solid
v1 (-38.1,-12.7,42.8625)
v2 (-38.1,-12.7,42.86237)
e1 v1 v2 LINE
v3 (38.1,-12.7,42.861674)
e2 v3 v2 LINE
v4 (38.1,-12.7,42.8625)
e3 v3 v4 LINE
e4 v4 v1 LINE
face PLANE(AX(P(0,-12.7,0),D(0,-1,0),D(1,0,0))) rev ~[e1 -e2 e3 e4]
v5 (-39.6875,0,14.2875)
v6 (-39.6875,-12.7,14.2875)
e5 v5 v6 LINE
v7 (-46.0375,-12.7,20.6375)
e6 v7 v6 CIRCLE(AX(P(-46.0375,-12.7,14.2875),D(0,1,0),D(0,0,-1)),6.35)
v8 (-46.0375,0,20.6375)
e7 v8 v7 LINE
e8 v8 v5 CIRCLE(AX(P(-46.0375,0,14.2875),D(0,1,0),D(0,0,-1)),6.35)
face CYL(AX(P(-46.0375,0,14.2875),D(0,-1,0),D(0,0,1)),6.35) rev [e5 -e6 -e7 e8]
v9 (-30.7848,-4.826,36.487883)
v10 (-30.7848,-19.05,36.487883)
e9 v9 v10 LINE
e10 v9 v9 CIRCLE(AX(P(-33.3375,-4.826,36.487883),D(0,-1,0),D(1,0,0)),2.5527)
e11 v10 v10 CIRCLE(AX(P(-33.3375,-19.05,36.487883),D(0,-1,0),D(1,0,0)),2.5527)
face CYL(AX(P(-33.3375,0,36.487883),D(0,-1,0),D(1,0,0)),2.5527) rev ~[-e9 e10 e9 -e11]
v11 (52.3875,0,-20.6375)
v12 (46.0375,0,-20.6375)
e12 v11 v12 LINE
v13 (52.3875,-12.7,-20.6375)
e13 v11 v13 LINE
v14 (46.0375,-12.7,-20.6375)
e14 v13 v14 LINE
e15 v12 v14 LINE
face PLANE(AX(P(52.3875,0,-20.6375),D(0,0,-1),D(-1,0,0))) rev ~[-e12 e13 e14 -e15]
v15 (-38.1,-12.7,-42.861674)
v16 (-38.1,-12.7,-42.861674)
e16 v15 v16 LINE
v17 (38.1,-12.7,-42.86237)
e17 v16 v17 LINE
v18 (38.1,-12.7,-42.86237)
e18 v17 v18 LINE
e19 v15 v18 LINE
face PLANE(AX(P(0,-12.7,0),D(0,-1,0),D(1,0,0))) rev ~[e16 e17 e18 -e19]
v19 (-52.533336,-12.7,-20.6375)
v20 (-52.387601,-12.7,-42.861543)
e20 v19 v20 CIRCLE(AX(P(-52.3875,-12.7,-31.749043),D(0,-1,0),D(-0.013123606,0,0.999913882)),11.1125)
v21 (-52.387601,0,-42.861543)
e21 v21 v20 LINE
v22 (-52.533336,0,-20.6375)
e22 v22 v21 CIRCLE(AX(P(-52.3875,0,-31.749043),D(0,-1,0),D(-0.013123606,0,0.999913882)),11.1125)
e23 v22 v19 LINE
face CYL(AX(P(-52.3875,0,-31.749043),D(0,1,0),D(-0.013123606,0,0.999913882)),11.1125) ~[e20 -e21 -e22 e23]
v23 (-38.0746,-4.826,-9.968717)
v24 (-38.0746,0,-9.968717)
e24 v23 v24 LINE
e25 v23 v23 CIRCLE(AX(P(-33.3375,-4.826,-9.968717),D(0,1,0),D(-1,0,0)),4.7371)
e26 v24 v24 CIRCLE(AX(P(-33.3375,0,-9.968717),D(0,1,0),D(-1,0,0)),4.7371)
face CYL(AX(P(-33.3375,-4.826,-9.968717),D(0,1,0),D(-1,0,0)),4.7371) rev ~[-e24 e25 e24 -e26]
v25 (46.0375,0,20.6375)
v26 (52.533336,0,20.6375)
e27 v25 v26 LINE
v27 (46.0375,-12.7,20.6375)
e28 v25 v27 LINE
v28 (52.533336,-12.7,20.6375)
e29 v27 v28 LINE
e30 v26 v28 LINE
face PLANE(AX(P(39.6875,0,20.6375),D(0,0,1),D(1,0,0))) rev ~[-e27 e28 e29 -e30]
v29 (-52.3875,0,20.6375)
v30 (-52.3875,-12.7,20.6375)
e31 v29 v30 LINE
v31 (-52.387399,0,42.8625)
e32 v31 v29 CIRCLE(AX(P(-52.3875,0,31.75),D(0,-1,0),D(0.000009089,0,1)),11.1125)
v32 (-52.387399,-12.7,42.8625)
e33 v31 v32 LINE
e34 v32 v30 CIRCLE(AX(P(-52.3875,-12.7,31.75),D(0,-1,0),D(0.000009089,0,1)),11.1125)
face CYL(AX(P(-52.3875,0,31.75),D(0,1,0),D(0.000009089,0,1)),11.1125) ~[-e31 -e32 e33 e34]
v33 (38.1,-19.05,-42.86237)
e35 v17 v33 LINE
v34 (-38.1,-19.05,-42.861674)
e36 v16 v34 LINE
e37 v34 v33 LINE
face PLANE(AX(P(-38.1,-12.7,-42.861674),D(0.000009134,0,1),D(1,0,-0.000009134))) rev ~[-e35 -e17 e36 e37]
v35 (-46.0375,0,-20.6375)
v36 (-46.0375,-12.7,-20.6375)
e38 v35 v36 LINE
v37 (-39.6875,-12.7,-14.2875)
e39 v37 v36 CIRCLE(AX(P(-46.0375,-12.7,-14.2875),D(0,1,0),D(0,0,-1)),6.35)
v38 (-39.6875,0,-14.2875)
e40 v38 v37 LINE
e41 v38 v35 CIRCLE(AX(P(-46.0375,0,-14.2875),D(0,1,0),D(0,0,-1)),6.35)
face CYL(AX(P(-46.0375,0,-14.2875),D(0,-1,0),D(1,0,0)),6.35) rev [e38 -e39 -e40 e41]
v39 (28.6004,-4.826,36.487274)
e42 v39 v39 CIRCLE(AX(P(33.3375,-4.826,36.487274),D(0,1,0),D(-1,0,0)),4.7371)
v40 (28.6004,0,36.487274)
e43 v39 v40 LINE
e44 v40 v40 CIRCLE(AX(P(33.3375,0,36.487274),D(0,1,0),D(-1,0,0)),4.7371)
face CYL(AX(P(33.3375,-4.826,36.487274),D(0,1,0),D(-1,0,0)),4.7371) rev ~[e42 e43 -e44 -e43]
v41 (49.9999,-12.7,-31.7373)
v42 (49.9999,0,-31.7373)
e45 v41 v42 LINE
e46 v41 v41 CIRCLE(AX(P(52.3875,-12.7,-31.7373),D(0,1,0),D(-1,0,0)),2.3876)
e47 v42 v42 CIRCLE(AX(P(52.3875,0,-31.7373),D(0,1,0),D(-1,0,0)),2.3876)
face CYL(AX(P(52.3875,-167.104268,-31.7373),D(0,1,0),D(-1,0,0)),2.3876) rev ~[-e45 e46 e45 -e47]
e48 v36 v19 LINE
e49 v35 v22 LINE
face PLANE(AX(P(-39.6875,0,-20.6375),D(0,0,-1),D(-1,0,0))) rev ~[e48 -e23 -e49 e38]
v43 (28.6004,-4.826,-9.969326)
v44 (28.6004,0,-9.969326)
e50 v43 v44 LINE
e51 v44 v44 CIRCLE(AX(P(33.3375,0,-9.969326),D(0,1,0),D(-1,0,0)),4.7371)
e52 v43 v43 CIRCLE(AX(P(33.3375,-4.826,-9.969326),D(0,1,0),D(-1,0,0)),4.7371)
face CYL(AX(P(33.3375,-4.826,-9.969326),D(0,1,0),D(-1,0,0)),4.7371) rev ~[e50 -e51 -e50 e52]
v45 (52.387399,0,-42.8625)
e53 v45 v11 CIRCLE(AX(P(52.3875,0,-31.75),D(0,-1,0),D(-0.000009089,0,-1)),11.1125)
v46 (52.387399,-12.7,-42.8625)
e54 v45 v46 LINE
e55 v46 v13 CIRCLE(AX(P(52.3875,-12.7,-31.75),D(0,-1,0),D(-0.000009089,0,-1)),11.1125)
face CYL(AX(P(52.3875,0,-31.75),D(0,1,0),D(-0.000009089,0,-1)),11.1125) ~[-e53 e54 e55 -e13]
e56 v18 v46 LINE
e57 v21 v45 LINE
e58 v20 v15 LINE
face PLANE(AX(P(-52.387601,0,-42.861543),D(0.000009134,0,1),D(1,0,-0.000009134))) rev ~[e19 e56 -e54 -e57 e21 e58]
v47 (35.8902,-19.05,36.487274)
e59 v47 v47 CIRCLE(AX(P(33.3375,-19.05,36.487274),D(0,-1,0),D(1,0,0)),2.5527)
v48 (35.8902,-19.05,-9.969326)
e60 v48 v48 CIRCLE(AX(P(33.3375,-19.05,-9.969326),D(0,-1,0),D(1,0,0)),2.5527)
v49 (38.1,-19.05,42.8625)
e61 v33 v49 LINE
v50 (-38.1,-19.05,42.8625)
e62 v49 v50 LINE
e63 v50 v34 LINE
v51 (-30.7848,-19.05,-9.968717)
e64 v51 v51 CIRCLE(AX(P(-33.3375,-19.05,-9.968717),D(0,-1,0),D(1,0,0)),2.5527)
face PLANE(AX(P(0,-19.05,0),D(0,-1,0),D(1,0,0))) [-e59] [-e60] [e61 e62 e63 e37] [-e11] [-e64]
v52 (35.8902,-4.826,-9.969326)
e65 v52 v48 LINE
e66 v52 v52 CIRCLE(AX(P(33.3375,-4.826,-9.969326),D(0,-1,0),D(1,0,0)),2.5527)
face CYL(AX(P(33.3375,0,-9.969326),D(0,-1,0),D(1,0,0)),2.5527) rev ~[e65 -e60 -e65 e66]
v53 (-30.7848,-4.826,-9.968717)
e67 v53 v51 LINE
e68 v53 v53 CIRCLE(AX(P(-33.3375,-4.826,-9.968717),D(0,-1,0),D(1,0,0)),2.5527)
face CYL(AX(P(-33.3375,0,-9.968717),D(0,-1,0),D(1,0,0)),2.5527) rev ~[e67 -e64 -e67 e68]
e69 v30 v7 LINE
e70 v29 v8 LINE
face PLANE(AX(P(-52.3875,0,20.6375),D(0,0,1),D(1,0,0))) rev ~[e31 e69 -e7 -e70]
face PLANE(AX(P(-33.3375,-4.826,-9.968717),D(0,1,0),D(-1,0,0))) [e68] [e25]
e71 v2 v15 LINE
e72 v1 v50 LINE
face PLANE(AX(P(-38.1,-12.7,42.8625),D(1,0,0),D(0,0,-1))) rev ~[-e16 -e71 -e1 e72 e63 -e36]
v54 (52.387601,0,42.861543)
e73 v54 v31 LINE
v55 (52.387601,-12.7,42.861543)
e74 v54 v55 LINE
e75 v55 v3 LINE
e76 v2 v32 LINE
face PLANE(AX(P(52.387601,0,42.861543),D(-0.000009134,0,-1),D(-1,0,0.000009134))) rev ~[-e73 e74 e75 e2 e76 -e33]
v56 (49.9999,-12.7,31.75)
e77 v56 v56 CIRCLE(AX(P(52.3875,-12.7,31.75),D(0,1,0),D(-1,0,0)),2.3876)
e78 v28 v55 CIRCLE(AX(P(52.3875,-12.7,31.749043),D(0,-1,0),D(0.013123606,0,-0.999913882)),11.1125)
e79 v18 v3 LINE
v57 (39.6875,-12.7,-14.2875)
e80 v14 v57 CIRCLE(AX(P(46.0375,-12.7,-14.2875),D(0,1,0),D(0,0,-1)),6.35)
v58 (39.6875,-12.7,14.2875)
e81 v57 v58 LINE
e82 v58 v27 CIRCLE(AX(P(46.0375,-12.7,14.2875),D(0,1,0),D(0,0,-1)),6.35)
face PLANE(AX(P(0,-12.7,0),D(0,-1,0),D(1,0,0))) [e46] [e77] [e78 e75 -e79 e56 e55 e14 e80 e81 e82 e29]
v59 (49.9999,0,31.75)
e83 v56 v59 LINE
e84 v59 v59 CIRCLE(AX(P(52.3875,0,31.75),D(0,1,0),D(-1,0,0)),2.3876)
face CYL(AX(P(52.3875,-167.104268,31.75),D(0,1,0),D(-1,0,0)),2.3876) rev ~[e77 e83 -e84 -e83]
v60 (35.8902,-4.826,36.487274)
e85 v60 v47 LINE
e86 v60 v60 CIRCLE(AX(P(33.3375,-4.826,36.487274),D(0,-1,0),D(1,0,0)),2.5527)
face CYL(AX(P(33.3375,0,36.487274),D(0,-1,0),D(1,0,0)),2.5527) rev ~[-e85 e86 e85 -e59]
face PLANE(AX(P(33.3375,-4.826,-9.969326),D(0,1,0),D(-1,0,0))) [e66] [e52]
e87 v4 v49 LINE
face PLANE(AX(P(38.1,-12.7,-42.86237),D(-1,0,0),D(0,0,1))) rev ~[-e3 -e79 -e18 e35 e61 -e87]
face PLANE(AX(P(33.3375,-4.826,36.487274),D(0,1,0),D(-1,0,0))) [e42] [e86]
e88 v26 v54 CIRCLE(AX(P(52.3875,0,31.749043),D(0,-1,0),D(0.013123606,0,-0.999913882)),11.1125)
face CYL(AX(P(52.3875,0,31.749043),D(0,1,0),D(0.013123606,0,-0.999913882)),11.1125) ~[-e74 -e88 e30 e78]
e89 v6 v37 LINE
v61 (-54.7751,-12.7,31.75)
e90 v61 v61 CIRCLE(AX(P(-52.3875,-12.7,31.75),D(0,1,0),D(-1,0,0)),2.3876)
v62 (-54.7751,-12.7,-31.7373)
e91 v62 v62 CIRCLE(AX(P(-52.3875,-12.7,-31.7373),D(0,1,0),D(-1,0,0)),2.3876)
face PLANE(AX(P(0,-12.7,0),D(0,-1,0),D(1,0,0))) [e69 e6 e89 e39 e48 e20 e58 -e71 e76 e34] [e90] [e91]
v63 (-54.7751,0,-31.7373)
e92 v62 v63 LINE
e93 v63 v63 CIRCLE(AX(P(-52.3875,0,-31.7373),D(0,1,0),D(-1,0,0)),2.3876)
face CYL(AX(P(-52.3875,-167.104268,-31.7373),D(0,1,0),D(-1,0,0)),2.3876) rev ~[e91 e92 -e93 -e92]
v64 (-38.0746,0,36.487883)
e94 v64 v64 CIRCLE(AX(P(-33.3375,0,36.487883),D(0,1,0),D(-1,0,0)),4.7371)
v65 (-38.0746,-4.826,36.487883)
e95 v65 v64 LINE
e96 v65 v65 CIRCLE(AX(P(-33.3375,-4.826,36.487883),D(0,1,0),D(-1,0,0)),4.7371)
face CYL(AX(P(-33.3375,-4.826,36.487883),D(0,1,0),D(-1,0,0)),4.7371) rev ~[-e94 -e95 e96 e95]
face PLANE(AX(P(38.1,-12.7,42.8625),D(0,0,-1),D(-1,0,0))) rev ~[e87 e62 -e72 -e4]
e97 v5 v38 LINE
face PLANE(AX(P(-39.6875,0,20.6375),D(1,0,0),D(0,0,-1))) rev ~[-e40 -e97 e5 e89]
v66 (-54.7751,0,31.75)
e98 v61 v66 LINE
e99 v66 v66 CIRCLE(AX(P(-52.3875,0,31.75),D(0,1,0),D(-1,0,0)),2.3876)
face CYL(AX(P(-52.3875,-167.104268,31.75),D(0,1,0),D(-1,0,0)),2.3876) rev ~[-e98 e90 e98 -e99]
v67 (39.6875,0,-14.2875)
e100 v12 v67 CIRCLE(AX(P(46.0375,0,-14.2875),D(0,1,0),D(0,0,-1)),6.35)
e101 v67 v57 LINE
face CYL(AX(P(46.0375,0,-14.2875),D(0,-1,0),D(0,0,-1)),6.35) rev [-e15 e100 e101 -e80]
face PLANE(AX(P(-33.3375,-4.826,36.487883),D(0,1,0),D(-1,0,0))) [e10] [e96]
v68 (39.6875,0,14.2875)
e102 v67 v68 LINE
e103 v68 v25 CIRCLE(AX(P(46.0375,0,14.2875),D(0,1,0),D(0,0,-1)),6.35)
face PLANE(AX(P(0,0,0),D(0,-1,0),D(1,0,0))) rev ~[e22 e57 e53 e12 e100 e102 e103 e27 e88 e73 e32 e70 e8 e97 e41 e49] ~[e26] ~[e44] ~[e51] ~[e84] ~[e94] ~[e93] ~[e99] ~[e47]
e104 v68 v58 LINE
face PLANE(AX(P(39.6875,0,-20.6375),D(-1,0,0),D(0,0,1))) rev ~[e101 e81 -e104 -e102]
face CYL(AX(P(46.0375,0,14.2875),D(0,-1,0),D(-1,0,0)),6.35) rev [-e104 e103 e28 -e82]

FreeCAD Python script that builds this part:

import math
import FreeCAD as App
import Part
import Sketcher
Q = App.Units.Quantity


def edges_at(feature, points):
    """Names of the edges that pass closest to the given points."""
    edges = feature.Shape.Edges
    near = lambda p: min(range(len(edges)), key=lambda i: edges[i].distToShape(Part.Vertex(*p))[0])
    return sorted({f"Edge{near(p) + 1}" for p in points})


def add_polygon(sketch, points):
    """Adds a closed chain of lines whose ends are joined by coincident constraints."""
    first, n = sketch.GeometryCount, len(points)
    for a, b in zip(points, points[1:] + points[:1]):
        sketch.addGeometry(Part.LineSegment(App.Vector(*a, 0), App.Vector(*b, 0)), False)
    for i in range(n):
        sketch.addConstraint(Sketcher.Constraint("Coincident", first + i, 2, first + (i + 1) % n, 1))

doc = App.newDocument("Part")
body = doc.addObject("PartDesign::Body", "Body")

# Sketch on XZ plane
sketch1 = body.newObject("Sketcher::SketchObject", "Sketch")
sketch1.AttachmentSupport = (doc.getObject("XZ_Plane"), [""])
sketch1.MapMode = "FlatFace"
sketch1.addGeometry(Part.LineSegment(App.Vector(52.387601, 42.861543, 0), App.Vector(-52.387399, 42.8625, 0)), False)
sketch1.addGeometry(Part.ArcOfCircle(Part.Circle(App.Vector(-52.3875, 31.75, 0), App.Vector(0, 0, 1), 11.1125), math.radians(89.999479), math.radians(270)), False)
sketch1.addGeometry(Part.LineSegment(App.Vector(-52.3875, 20.6375, 0), App.Vector(-39.6875, 20.6375, 0)), False)
sketch1.addGeometry(Part.LineSegment(App.Vector(-39.6875, 20.6375, 0), App.Vector(-39.6875, -20.6375, 0)), False)
sketch1.addGeometry(Part.LineSegment(App.Vector(-39.6875, -20.6375, 0), App.Vector(-52.533336, -20.6375, 0)), False)
sketch1.addGeometry(Part.ArcOfCircle(Part.Circle(App.Vector(-52.3875, -31.749043, 0), App.Vector(0, 0, 1), 11.1125), math.radians(90.751949), math.radians(269.999479)), False)
sketch1.addGeometry(Part.LineSegment(App.Vector(-52.387601, -42.861543, 0), App.Vector(52.387399, -42.8625, 0)), False)
sketch1.addGeometry(Part.ArcOfCircle(Part.Circle(App.Vector(52.3875, -31.75, 0), App.Vector(0, 0, 1), 11.1125), math.radians(-90.000521), math.radians(90)), False)
sketch1.addGeometry(Part.LineSegment(App.Vector(52.3875, -20.6375, 0), App.Vector(39.6875, -20.6375, 0)), False)
sketch1.addGeometry(Part.LineSegment(App.Vector(39.6875, -20.6375, 0), App.Vector(39.6875, 20.6375, 0)), False)
sketch1.addGeometry(Part.LineSegment(App.Vector(39.6875, 20.6375, 0), App.Vector(52.533336, 20.6375, 0)), False)
sketch1.addGeometry(Part.ArcOfCircle(Part.Circle(App.Vector(52.3875, 31.749043, 0), App.Vector(0, 0, 1), 11.1125), math.radians(-89.248051), math.radians(89.999479)), False)
sketch1.addConstraint(Sketcher.Constraint("Tangent", 0, 2, 1, 1))
sketch1.addConstraint(Sketcher.Constraint("Tangent", 1, 2, 2, 1))
sketch1.addConstraint(Sketcher.Constraint("Coincident", 2, 2, 3, 1))
sketch1.addConstraint(Sketcher.Constraint("Coincident", 3, 2, 4, 1))
sketch1.addConstraint(Sketcher.Constraint("Coincident", 4, 2, 5, 1))
sketch1.addConstraint(Sketcher.Constraint("Tangent", 5, 2, 6, 1))
sketch1.addConstraint(Sketcher.Constraint("Tangent", 6, 2, 7, 1))
sketch1.addConstraint(Sketcher.Constraint("Tangent", 7, 2, 8, 1))
sketch1.addConstraint(Sketcher.Constraint("Coincident", 8, 2, 9, 1))
sketch1.addConstraint(Sketcher.Constraint("Coincident", 9, 2, 10, 1))
sketch1.addConstraint(Sketcher.Constraint("Coincident", 10, 2, 11, 1))
sketch1.addConstraint(Sketcher.Constraint("Tangent", 11, 2, 0, 1))
sketch1.addConstraint(Sketcher.Constraint("Horizontal", 2))
sketch1.addConstraint(Sketcher.Constraint("Vertical", 3))
sketch1.addConstraint(Sketcher.Constraint("Horizontal", 4))
sketch1.addConstraint(Sketcher.Constraint("Horizontal", 8))
sketch1.addConstraint(Sketcher.Constraint("Vertical", 9))
sketch1.addConstraint(Sketcher.Constraint("Horizontal", 10))
sketch1.addConstraint(Sketcher.Constraint("Equal", 1, 5))
sketch1.addConstraint(Sketcher.Constraint("Equal", 5, 7))
sketch1.addConstraint(Sketcher.Constraint("Equal", 7, 11))
sketch1.addConstraint(Sketcher.Constraint("Symmetric", 1, 3, 7, 3, -1, 1))
sketch1.addConstraint(Sketcher.Constraint("Symmetric", 5, 3, 11, 3, -1, 1))
sketch1.addConstraint(Sketcher.Constraint("Symmetric", 3, 2, 9, 2, -1, 1))
sketch1.addConstraint(Sketcher.Constraint("Horizontal", 4, 2, 7, 2))
sketch1.addConstraint(Sketcher.Constraint("Vertical", 1, 3, 5, 3))
sketch1.addConstraint(Sketcher.Constraint("DistanceX", 2, 1, 2, 2, Q("0.5 in")))
sketch1.addConstraint(Sketcher.Constraint("Radius", 1, Q("0.4375 in")))
sketch1.addConstraint(Sketcher.Constraint("DistanceY", 7, 3, 1, 3, Q("2.5 in")))
sketch1.addConstraint(Sketcher.Constraint("Distance", 0, Q("4.125 in")))
sketch1.addConstraint(Sketcher.Constraint("DistanceX", 4, 2, 4, 1, 12.845836))
pad1 = body.newObject("PartDesign::Pad", "Pad")
pad1.Profile = sketch1
pad1.Length = Q("0.5 in")
doc.recompute()

fillet = body.newObject("PartDesign::Fillet", "Fillet")
fillet.Base = (pad1, edges_at(pad1, [
    (-39.688, -6.35, 20.637),
    (-39.688, -6.35, -20.637),
    (39.688, -6.35, 20.637),
    (39.688, -6.35, -20.637),
]))
fillet.Radius = Q("0.25 in")

# Sketch on XZ plane
sketch2 = body.newObject("Sketcher::SketchObject", "Sketch001")
sketch2.AttachmentSupport = (doc.getObject("XZ_Plane"), [""])
sketch2.MapMode = "FlatFace"
sketch2.AttachmentOffset = App.Placement(App.Vector(0, 0, 0.5 * 25.4), App.Rotation())
add_polygon(sketch2, [(-38.1, -42.861674), (38.1, -42.86237), (38.1, 42.8625), (-38.1, 42.8625)])  # lines 0-3
sketch2.addConstraint(Sketcher.Constraint("Vertical", 1))
sketch2.addConstraint(Sketcher.Constraint("Horizontal", 2))
sketch2.addConstraint(Sketcher.Constraint("Vertical", 3))
sketch2.addConstraint(Sketcher.Constraint("DistanceX", 2, 2, 2, 1, Q("3 in")))
sketch2.addConstraint(Sketcher.Constraint("DistanceX", -1, 1, 0, 2, Q("1.5 in")))
sketch2.addConstraint(Sketcher.Constraint("DistanceY", -1, 1, 1, 2, Q("1.6875 in")))
sketch2.addConstraint(Sketcher.Constraint("DistanceY", 1, 1, 1, 2, 85.72487))
sketch2.addConstraint(Sketcher.Constraint("DistanceY", 3, 2, 3, 1, 85.724174))
pad2 = body.newObject("PartDesign::Pad", "Pad001")
pad2.Profile = sketch2
pad2.Length = Q("0.25 in")

# Sketch on XZ plane
sketch3 = body.newObject("Sketcher::SketchObject", "Sketch002")
sketch3.AttachmentSupport = (doc.getObject("XZ_Plane"), [""])
sketch3.MapMode = "FlatFace"
sketch3.AttachmentOffset = App.Placement(App.Vector(0, 0, 0.5 * 25.4), App.Rotation())
sketch3.addGeometry(Part.Circle(App.Vector(-52.3875, 31.75, 0), App.Vector(0, 0, 1), 2.3876), False)
sketch3.addGeometry(Part.Circle(App.Vector(52.3875, 31.75, 0), App.Vector(0, 0, 1), 2.3876), False)
sketch3.addGeometry(Part.Circle(App.Vector(52.3875, -31.7373, 0), App.Vector(0, 0, 1), 2.3876), False)
sketch3.addGeometry(Part.Circle(App.Vector(-52.3875, -31.7373, 0), App.Vector(0, 0, 1), 2.3876), False)
sketch3.addConstraint(Sketcher.Constraint("Equal", 0, 1))
sketch3.addConstraint(Sketcher.Constraint("Equal", 1, 2))
sketch3.addConstraint(Sketcher.Constraint("Equal", 2, 3))
sketch3.addConstraint(Sketcher.Constraint("Symmetric", 0, 3, 1, 3, -2))
sketch3.addConstraint(Sketcher.Constraint("Symmetric", 2, 3, 3, 3, -2))
sketch3.addConstraint(Sketcher.Constraint("Vertical", 1, 3, 2, 3))
sketch3.addConstraint(Sketcher.Constraint("Diameter", 0, Q("0.188 in")))
sketch3.addConstraint(Sketcher.Constraint("DistanceY", -1, 1, 0, 3, Q("1.25 in")))
sketch3.addConstraint(Sketcher.Constraint("DistanceX", 0, 3, -1, 1, Q("2.0625 in")))
sketch3.addConstraint(Sketcher.Constraint("DistanceY", 2, 3, -1, 1, Q("1.2495 in")))
doc.recompute()
hole = body.newObject("PartDesign::Hole", "Hole")
hole.Profile = sketch3
hole.ThreadType = "None"
hole.Diameter = Q("0.188 in")
hole.DepthType = "ThroughAll"

# Sketch on XZ plane
sketch4 = body.newObject("Sketcher::SketchObject", "Sketch003")
sketch4.AttachmentSupport = (doc.getObject("XZ_Plane"), [""])
sketch4.MapMode = "FlatFace"
sketch4.addGeometry(Part.Circle(App.Vector(33.3375, 36.487274, 0), App.Vector(0, 0, 1), 2.5527), False)
sketch4.addGeometry(Part.Circle(App.Vector(-33.3375, 36.487883, 0), App.Vector(0, 0, 1), 2.5527), False)
sketch4.addGeometry(Part.Circle(App.Vector(-33.3375, -9.968717, 0), App.Vector(0, 0, 1), 2.5527), False)
sketch4.addGeometry(Part.Circle(App.Vector(33.3375, -9.969326, 0), App.Vector(0, 0, 1), 2.5527), False)
sketch4.addConstraint(Sketcher.Constraint("Equal", 0, 1))
sketch4.addConstraint(Sketcher.Constraint("Equal", 1, 2))
sketch4.addConstraint(Sketcher.Constraint("Equal", 2, 3))
sketch4.addConstraint(Sketcher.Constraint("Vertical", 1, 3, 2, 3))
sketch4.addConstraint(Sketcher.Constraint("Vertical", 0, 3, 3, 3))
sketch4.addConstraint(Sketcher.Constraint("Diameter", 0, Q("0.201 in")))
sketch4.addConstraint(Sketcher.Constraint("DistanceX", -1, 1, 0, 3, Q("1.3125 in")))
sketch4.addConstraint(Sketcher.Constraint("DistanceX", 1, 3, -1, 1, Q("1.3125 in")))
sketch4.addConstraint(Sketcher.Constraint("DistanceY", 2, 3, 1, 3, Q("1.829 in")))
sketch4.addConstraint(Sketcher.Constraint("DistanceY", 3, 3, 0, 3, Q("1.829 in")))
sketch4.addConstraint(Sketcher.Constraint("DistanceY", 0, 3, 1, 3, 0.000609))
sketch4.addConstraint(Sketcher.Constraint("DistanceY", -1, 1, 0, 3, 36.487274))
doc.recompute()
hole2 = body.newObject("PartDesign::Hole", "Hole001")
hole2.Profile = sketch4
hole2.ThreadType = "None"
hole2.Diameter = Q("0.201 in")
hole2.DepthType = "ThroughAll"
hole2.HoleCutType = "Counterbore"
hole2.HoleCutDiameter = Q("0.373 in")
hole2.HoleCutDepth = Q("0.19 in")
hole2.Reversed = True

doc.recompute()
